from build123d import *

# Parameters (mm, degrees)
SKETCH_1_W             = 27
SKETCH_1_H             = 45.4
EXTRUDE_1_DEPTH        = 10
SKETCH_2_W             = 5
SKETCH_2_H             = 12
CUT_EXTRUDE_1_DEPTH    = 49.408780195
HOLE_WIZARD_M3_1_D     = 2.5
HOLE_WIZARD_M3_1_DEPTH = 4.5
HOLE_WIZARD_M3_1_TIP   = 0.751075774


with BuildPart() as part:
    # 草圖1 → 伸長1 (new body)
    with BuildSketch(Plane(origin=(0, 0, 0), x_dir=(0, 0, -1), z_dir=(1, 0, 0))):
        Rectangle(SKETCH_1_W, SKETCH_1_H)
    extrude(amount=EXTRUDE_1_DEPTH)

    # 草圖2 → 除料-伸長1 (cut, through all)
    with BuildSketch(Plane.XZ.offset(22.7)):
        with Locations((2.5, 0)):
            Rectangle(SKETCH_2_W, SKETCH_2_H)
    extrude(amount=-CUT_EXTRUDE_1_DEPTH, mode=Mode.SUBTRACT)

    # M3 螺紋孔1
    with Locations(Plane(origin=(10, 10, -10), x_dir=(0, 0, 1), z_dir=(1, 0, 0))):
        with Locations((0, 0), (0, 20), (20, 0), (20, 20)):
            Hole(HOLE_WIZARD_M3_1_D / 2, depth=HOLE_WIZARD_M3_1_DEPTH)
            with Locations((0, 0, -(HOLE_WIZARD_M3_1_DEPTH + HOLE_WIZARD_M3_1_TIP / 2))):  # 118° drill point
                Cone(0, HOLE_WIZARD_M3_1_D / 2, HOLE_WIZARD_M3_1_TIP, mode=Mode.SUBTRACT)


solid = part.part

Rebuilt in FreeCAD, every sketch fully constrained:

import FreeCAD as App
import Part
import Sketcher
Q = App.Units.Quantity


def add_polygon(sketch, points):
    """Adds a closed chain of lines whose ends are joined by coincident constraints."""
    first, n = sketch.GeometryCount, len(points)
    for a, b in zip(points, points[1:] + points[:1]):
        sketch.addGeometry(Part.LineSegment(App.Vector(*a, 0), App.Vector(*b, 0)), False)
    for i in range(n):
        sketch.addConstraint(Sketcher.Constraint("Coincident", first + i, 2, first + (i + 1) % n, 1))

doc = App.newDocument("Part")
body = doc.addObject("PartDesign::Body", "Body")

sketch1 = body.newObject("Sketcher::SketchObject", "Sketch")
sketch1.AttachmentSupport = (doc.getObject("YZ_Plane"), [""])
sketch1.MapMode = "FlatFace"
add_polygon(sketch1, [(23, 14), (-23, 14), (-23, -14), (23, -14)])
sketch1.addConstraint([
    Sketcher.Constraint("Horizontal", 0),
    Sketcher.Constraint("Vertical", 1),
    Sketcher.Constraint("Horizontal", 2),
    Sketcher.Constraint("Vertical", 3),
    Sketcher.Constraint("Symmetric", 0, 2, 2, 2, -1, 1),
    Sketcher.Constraint("DistanceY", 1, 2, 1, 1, Q("27 mm")),
    Sketcher.Constraint("DistanceX", 0, 2, 0, 1, Q("45.4 mm")),
])
pad1 = body.newObject("PartDesign::Pad", "Pad")
pad1.Profile = sketch1
pad1.Length = 10

sketch2 = body.newObject("Sketcher::SketchObject", "Sketch001")
sketch2.AttachmentSupport = (doc.getObject("XZ_Plane"), [""])
sketch2.MapMode = "FlatFace"
sketch2.AttachmentOffset = App.Placement(App.Vector(0, 0, 22.7), App.Rotation())
add_polygon(sketch2, [(0, 6), (0, -6), (5, -6), (5, 6)])
sketch2.addConstraint([
    Sketcher.Constraint("Vertical", 0),
    Sketcher.Constraint("Horizontal", 1),
    Sketcher.Constraint("Vertical", 2),
    Sketcher.Constraint("Horizontal", 3),
    Sketcher.Constraint("Symmetric", 0, 2, 3, 2, -1, 1),
    Sketcher.Constraint("DistanceX", 1, 1, 1, 2, Q("5 mm")),
    Sketcher.Constraint("DistanceY", 0, 2, 0, 1, Q("12 mm")),
])
pocket1 = body.newObject("PartDesign::Pocket", "Pocket")
pocket1.Profile = sketch2
pocket1.Type = "ThroughAll"

sketch3 = body.newObject("Sketcher::SketchObject", "Sketch002")
sketch3.AttachmentSupport = (doc.getObject("YZ_Plane"), [""])
sketch3.MapMode = "FlatFace"
sketch3.AttachmentOffset = App.Placement(App.Vector(0, 0, 10), App.Rotation())
sketch3.addGeometry([
    Part.Circle(App.Vector(10, -10, 0), App.Vector(0, 0, 1), 1.2),
    Part.Circle(App.Vector(-10, -10, 0), App.Vector(0, 0, 1), 1.2),
    Part.Circle(App.Vector(10, 10, 0), App.Vector(0, 0, 1), 1.2),
    Part.Circle(App.Vector(-10, 10, 0), App.Vector(0, 0, 1), 1.2),
], False)
sketch3.addConstraint([
    Sketcher.Constraint("Equal", 0, 1),
    Sketcher.Constraint("Equal", 1, 2),
    Sketcher.Constraint("Equal", 2, 3),
    Sketcher.Constraint("Symmetric", 1, 3, 2, 3, -1, 1),
    Sketcher.Constraint("Symmetric", 0, 3, 3, 3, -1, 1),
    Sketcher.Constraint("Symmetric", 0, 3, 1, 3, -2),
    Sketcher.Constraint("Diameter", 0, Q("2.5 mm")),
    Sketcher.Constraint("DistanceX", -1, 1, 0, 3, Q("10 mm")),
    Sketcher.Constraint("DistanceY", 0, 3, -1, 1, Q("10 mm")),
])
doc.recompute()
hole = body.newObject("PartDesign::Hole", "Hole")
hole.Profile = sketch3
hole.ThreadType = "None"
hole.Diameter = 2.5
hole.DepthType = "Dimension"
hole.Depth = 4.5
hole.DrillPoint = "Angled"
hole.DrillPointAngle = 118

doc.recompute()
